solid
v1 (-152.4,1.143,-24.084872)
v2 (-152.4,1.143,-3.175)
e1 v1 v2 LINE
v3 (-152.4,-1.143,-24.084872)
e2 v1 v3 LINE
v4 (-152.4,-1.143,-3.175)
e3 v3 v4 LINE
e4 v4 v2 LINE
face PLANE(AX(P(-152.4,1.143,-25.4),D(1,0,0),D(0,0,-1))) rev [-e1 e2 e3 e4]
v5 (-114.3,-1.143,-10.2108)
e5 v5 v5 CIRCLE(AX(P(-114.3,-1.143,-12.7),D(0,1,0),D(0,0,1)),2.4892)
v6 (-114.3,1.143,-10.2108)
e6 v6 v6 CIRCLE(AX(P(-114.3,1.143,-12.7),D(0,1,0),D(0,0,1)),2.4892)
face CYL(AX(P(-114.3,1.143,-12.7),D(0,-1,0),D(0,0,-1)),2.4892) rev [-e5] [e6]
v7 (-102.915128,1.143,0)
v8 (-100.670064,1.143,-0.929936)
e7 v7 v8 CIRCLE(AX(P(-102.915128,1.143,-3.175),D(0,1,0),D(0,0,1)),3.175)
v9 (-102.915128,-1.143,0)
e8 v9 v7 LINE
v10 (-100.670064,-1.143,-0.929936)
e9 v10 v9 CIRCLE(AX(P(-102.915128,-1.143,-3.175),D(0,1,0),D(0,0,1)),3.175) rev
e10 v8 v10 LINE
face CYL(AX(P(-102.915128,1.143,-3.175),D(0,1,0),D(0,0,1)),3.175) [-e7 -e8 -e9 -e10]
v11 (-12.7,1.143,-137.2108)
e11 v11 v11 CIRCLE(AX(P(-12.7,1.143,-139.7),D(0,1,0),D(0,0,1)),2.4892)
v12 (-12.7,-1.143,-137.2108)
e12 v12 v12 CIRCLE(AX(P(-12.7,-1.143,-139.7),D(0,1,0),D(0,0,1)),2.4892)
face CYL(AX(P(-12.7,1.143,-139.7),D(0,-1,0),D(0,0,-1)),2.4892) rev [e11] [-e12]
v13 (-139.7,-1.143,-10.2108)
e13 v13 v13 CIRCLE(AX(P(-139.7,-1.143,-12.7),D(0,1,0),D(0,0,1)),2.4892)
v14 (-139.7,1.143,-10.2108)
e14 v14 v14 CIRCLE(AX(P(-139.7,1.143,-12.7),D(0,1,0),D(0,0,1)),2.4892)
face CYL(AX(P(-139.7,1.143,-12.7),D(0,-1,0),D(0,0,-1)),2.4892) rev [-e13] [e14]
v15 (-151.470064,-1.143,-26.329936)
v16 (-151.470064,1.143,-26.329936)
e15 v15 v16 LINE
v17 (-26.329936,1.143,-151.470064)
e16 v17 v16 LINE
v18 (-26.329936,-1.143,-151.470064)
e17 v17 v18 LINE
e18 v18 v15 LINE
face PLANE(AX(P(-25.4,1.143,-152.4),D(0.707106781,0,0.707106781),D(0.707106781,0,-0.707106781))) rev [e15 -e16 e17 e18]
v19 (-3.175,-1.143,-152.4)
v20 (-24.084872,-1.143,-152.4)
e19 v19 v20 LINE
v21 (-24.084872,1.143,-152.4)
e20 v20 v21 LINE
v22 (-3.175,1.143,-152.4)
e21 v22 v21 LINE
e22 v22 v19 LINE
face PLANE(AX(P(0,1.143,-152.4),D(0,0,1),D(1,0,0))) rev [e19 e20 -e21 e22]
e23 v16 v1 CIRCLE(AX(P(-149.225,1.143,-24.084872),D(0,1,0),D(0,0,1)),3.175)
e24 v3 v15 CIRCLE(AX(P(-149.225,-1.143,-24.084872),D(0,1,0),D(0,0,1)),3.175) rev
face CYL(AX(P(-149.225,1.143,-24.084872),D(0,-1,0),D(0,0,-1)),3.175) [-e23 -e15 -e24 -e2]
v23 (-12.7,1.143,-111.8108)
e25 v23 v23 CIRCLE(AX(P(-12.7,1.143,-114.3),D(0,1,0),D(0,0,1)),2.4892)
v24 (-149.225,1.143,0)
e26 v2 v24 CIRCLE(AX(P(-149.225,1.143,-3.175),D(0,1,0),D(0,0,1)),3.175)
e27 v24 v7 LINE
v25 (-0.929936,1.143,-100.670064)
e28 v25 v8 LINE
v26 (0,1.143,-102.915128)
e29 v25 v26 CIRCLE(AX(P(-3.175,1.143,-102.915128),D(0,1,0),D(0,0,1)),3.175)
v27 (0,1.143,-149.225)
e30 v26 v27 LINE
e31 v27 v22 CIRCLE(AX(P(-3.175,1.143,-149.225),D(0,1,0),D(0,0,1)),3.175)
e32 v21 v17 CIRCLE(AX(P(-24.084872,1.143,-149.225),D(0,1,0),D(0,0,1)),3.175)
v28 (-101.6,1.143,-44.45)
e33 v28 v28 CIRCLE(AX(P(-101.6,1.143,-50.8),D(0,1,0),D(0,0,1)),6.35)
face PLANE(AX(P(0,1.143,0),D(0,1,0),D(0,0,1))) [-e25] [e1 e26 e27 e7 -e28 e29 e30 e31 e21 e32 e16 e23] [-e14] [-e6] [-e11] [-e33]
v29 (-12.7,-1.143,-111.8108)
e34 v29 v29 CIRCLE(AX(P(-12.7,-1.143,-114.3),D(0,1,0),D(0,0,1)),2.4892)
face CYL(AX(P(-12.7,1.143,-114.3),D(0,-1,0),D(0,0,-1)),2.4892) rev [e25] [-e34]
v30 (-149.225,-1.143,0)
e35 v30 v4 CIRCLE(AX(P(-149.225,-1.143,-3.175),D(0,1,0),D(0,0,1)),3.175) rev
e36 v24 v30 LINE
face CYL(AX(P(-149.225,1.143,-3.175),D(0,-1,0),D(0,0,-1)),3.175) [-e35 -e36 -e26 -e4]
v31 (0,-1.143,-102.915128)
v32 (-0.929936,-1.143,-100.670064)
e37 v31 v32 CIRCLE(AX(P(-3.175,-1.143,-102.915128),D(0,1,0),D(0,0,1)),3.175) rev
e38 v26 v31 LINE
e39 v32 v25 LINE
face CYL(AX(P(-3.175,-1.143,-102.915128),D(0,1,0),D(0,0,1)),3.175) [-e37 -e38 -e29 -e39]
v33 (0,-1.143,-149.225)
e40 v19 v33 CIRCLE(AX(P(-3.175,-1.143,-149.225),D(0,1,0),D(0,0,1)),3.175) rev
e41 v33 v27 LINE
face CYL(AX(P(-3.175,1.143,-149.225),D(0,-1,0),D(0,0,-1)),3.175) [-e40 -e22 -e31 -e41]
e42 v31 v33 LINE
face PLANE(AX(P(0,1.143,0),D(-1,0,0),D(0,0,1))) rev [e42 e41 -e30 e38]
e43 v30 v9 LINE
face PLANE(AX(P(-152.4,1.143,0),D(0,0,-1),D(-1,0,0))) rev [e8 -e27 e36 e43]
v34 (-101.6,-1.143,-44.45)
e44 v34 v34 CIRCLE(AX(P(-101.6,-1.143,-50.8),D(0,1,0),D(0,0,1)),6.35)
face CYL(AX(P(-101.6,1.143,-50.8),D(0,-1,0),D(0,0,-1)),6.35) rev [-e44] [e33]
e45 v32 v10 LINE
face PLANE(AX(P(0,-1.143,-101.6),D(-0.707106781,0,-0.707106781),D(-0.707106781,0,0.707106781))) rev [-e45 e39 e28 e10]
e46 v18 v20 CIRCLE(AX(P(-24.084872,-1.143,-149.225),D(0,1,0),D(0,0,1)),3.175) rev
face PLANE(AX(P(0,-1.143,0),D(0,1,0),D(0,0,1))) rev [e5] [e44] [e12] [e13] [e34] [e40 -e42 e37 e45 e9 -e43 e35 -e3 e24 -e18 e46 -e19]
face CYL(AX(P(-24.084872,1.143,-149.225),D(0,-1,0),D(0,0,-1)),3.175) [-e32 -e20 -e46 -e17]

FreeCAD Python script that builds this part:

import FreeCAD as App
import Part
import Sketcher
from FreeCAD import Vector
Q = App.Units.Quantity


def edges_at(feature, points):
    """Names of the edges that pass closest to the given points."""
    edges = feature.Shape.Edges
    near = lambda p: min(range(len(edges)), key=lambda i: edges[i].distToShape(Part.Vertex(*p))[0])
    return sorted({f"Edge{near(p) + 1}" for p in points})

doc = App.newDocument("Part")
body = doc.addObject("PartDesign::Body", "Body")

# Sketch on XZ plane
sketch1 = body.newObject("Sketcher::SketchObject", "Sketch")
sketch1.AttachmentSupport = (doc.getObject("XZ_Plane"), [""])
sketch1.MapMode = "FlatFace"
sketch1.addGeometry([
    Part.LineSegment(Vector(0, 0, 0), Vector(0, -152.4, 0)),  # 0
    Part.LineSegment(Vector(0, -152.4, 0), Vector(-25.4, -152.4, 0)),  # 1
    Part.LineSegment(Vector(-25.4, -152.4, 0), Vector(-152.4, -25.4, 0)),  # 2
    Part.LineSegment(Vector(-152.4, -25.4, 0), Vector(-152.4, 0, 0)),  # 3
    Part.LineSegment(Vector(-152.4, 0, 0), Vector(0, 0, 0)),  # 4
    Part.Circle(Vector(-139.7, -12.7, 0), Vector(0, 0, 1), 2.5),  # 5
    Part.Circle(Vector(-114.3, -12.7, 0), Vector(0, 0, 1), 2.5),  # 6
    Part.Circle(Vector(-88.9, -12.7, 0), Vector(0, 0, 1), 2.5),  # 7
    Part.Circle(Vector(-101.6, -50.8, 0), Vector(0, 0, 1), 6.3),  # 8
    Part.Circle(Vector(-63.5, -12.7, 0), Vector(0, 0, 1), 2.5),  # 9
    Part.Circle(Vector(-38.1, -12.7, 0), Vector(0, 0, 1), 2.5),  # 10
    Part.Circle(Vector(-12.7, -12.7, 0), Vector(0, 0, 1), 2.5),  # 11
    Part.Circle(Vector(-12.7, -38.1, 0), Vector(0, 0, 1), 2.5),  # 12
    Part.Circle(Vector(-12.7, -63.5, 0), Vector(0, 0, 1), 2.5),  # 13
    Part.Circle(Vector(-12.7, -88.9, 0), Vector(0, 0, 1), 2.5),  # 14
    Part.Circle(Vector(-12.7, -114.3, 0), Vector(0, 0, 1), 2.5),  # 15
    Part.Circle(Vector(-12.7, -139.7, 0), Vector(0, 0, 1), 2.5),  # 16
], False)
sketch1.addConstraint([
    Sketcher.Constraint("Coincident", 0, 2, 1, 1),
    Sketcher.Constraint("Coincident", 1, 2, 2, 1),
    Sketcher.Constraint("Coincident", 2, 2, 3, 1),
    Sketcher.Constraint("Coincident", 3, 2, 4, 1),
    Sketcher.Constraint("Coincident", 4, 2, 0, 1),
    Sketcher.Constraint("Vertical", 0),
    Sketcher.Constraint("Horizontal", 1),
    Sketcher.Constraint("Vertical", 3),
    Sketcher.Constraint("Horizontal", 4),
    Sketcher.Constraint("Coincident", 4, 2, -1, 1),
    Sketcher.Constraint("Equal", 5, 6),
    Sketcher.Constraint("Equal", 6, 7),
    Sketcher.Constraint("Equal", 7, 9),
    Sketcher.Constraint("Equal", 9, 10),
    Sketcher.Constraint("Equal", 10, 11),
    Sketcher.Constraint("Equal", 11, 12),
    Sketcher.Constraint("Equal", 12, 13),
    Sketcher.Constraint("Equal", 13, 14),
    Sketcher.Constraint("Equal", 14, 15),
    Sketcher.Constraint("Equal", 15, 16),
    Sketcher.Constraint("Horizontal", 5, 3, 6, 3),
    Sketcher.Constraint("Horizontal", 6, 3, 7, 3),
    Sketcher.Constraint("Horizontal", 7, 3, 9, 3),
    Sketcher.Constraint("Horizontal", 9, 3, 10, 3),
    Sketcher.Constraint("Horizontal", 10, 3, 11, 3),
    Sketcher.Constraint("Vertical", 11, 3, 12, 3),
    Sketcher.Constraint("Vertical", 12, 3, 13, 3),
    Sketcher.Constraint("Vertical", 13, 3, 14, 3),
    Sketcher.Constraint("Vertical", 14, 3, 15, 3),
    Sketcher.Constraint("Vertical", 15, 3, 16, 3),
    Sketcher.Constraint("Equal", 4, 0),
    Sketcher.Constraint("Equal", 1, 3),
    Sketcher.Constraint("Diameter", 8, Q("0.5 in")),
    Sketcher.Constraint("DistanceX", 1, 2, 1, 1, Q("1 in")),
    Sketcher.Constraint("DistanceX", 4, 1, 4, 2, Q("6 in")),
    Sketcher.Constraint("Diameter", 5, Q("0.196 in")),
    Sketcher.Constraint("DistanceX", 8, 3, -1, 1, Q("4 in")),
    Sketcher.Constraint("DistanceY", 8, 3, -1, 1, Q("2 in")),
    Sketcher.Constraint("DistanceX", 5, 3, 6, 3, Q("1 in")),
    Sketcher.Constraint("DistanceX", 6, 3, 7, 3, Q("1 in")),
    Sketcher.Constraint("DistanceX", 7, 3, 9, 3, Q("1 in")),
    Sketcher.Constraint("DistanceX", 9, 3, 10, 3, Q("1 in")),
    Sketcher.Constraint("DistanceX", 10, 3, 11, 3, Q("1 in")),
    Sketcher.Constraint("DistanceY", 12, 3, 11, 3, Q("1 in")),
    Sketcher.Constraint("DistanceY", 13, 3, 12, 3, Q("1 in")),
    Sketcher.Constraint("DistanceY", 14, 3, 13, 3, Q("1 in")),
    Sketcher.Constraint("DistanceY", 15, 3, 14, 3, Q("1 in")),
    Sketcher.Constraint("DistanceY", 16, 3, 15, 3, Q("1 in")),
    Sketcher.Constraint("DistanceX", 5, 3, -1, 1, Q("5.5 in")),
    Sketcher.Constraint("DistanceY", 5, 3, -1, 1, Q("0.5 in")),
])
pad1 = body.newObject("PartDesign::Pad", "Pad")
pad1.Profile = sketch1
pad1.Length = Q("0.09 in")
pad1.Midplane = True

# Sketch on XZ plane
sketch2 = body.newObject("Sketcher::SketchObject", "Sketch001")
sketch2.AttachmentSupport = (doc.getObject("XZ_Plane"), [""])
sketch2.MapMode = "FlatFace"
sketch2.AttachmentOffset = App.Placement(Vector(0, 0, -0.045 * 25.4), App.Rotation())
sketch2.addGeometry([
    Part.LineSegment(Vector(0, 0, 0), Vector(0, -102, 0)),
    Part.LineSegment(Vector(0, -102, 0), Vector(-102, 0, 0)),
    Part.LineSegment(Vector(-102, 0, 0), Vector(0, 0, 0)),
], False)
sketch2.addConstraint([
    Sketcher.Constraint("Coincident", 0, 2, 1, 1),
    Sketcher.Constraint("Coincident", 1, 2, 2, 1),
    Sketcher.Constraint("Coincident", 2, 2, 0, 1),
    Sketcher.Constraint("Vertical", 0),
    Sketcher.Constraint("Horizontal", 2),
    Sketcher.Constraint("Coincident", 2, 2, -1, 1),
    Sketcher.Constraint("Equal", 2, 0),
    Sketcher.Constraint("DistanceX", 2, 1, 2, 2, Q("4 in")),
])
pocket1 = body.newObject("PartDesign::Pocket", "Pocket")
pocket1.Profile = sketch2
pocket1.Type = "ThroughAll"
pocket1.Reversed = True

# Sketch on XZ plane
sketch3 = body.newObject("Sketcher::SketchObject", "Sketch002")
sketch3.AttachmentSupport = (doc.getObject("XZ_Plane"), [""])
sketch3.MapMode = "FlatFace"
sketch3.AttachmentOffset = App.Placement(Vector(0, 0, -0.045 * 25.4), App.Rotation())
sketch3.addGeometry([
    Part.LineSegment(Vector(-102, -15, 0), Vector(-102, 0, 0)),
    Part.LineSegment(Vector(-102, 0, 0), Vector(0, -102, 0)),
    Part.LineSegment(Vector(0, -102, 0), Vector(-16, -101, 0)),
    Part.LineSegment(Vector(-16, -101, 0), Vector(-102, -15, 0)),
], False)
sketch3.addConstraint([
    Sketcher.Constraint("Coincident", 0, 2, 1, 1),
    Sketcher.Constraint("Coincident", 1, 2, 2, 1),
    Sketcher.Constraint("Coincident", 2, 2, 3, 1),
    Sketcher.Constraint("Coincident", 3, 2, 0, 1),
    Sketcher.Constraint("Vertical", 0),
    Sketcher.Constraint("PointOnObject", 0, 2, -1),
    Sketcher.Constraint("PointOnObject", 1, 2, -2),
    Sketcher.Constraint("Parallel", 1, 3),
    Sketcher.Constraint("DistanceX", 0, 2, -1, 1, Q("4 in")),
    Sketcher.Constraint("DistanceY", 1, 2, -1, 1, Q("4 in")),
    Sketcher.Constraint("DistanceY", 0, 1, 0, 2, Q("15.120409 mm")),
    Sketcher.Constraint("Distance", 2, Q("15.620038 mm")),
])
pad2 = body.newObject("PartDesign::Pad", "Pad001")
pad2.Profile = sketch3
pad2.Length = Q("0.09 in")
doc.recompute()

fillet = body.newObject("PartDesign::Fillet", "Fillet")
fillet.Base = (pad2, edges_at(pad2, [
    (-101.6, 0, 0),
    (0, 0, -101.6),
    (-152.4, 0, 0),
    (-152.4, 0, -25.4),
    (-25.4, 0, -152.4),
    (0, 0, -152.4),
]))
fillet.Radius = Q("0.125 in")

doc.recompute()
